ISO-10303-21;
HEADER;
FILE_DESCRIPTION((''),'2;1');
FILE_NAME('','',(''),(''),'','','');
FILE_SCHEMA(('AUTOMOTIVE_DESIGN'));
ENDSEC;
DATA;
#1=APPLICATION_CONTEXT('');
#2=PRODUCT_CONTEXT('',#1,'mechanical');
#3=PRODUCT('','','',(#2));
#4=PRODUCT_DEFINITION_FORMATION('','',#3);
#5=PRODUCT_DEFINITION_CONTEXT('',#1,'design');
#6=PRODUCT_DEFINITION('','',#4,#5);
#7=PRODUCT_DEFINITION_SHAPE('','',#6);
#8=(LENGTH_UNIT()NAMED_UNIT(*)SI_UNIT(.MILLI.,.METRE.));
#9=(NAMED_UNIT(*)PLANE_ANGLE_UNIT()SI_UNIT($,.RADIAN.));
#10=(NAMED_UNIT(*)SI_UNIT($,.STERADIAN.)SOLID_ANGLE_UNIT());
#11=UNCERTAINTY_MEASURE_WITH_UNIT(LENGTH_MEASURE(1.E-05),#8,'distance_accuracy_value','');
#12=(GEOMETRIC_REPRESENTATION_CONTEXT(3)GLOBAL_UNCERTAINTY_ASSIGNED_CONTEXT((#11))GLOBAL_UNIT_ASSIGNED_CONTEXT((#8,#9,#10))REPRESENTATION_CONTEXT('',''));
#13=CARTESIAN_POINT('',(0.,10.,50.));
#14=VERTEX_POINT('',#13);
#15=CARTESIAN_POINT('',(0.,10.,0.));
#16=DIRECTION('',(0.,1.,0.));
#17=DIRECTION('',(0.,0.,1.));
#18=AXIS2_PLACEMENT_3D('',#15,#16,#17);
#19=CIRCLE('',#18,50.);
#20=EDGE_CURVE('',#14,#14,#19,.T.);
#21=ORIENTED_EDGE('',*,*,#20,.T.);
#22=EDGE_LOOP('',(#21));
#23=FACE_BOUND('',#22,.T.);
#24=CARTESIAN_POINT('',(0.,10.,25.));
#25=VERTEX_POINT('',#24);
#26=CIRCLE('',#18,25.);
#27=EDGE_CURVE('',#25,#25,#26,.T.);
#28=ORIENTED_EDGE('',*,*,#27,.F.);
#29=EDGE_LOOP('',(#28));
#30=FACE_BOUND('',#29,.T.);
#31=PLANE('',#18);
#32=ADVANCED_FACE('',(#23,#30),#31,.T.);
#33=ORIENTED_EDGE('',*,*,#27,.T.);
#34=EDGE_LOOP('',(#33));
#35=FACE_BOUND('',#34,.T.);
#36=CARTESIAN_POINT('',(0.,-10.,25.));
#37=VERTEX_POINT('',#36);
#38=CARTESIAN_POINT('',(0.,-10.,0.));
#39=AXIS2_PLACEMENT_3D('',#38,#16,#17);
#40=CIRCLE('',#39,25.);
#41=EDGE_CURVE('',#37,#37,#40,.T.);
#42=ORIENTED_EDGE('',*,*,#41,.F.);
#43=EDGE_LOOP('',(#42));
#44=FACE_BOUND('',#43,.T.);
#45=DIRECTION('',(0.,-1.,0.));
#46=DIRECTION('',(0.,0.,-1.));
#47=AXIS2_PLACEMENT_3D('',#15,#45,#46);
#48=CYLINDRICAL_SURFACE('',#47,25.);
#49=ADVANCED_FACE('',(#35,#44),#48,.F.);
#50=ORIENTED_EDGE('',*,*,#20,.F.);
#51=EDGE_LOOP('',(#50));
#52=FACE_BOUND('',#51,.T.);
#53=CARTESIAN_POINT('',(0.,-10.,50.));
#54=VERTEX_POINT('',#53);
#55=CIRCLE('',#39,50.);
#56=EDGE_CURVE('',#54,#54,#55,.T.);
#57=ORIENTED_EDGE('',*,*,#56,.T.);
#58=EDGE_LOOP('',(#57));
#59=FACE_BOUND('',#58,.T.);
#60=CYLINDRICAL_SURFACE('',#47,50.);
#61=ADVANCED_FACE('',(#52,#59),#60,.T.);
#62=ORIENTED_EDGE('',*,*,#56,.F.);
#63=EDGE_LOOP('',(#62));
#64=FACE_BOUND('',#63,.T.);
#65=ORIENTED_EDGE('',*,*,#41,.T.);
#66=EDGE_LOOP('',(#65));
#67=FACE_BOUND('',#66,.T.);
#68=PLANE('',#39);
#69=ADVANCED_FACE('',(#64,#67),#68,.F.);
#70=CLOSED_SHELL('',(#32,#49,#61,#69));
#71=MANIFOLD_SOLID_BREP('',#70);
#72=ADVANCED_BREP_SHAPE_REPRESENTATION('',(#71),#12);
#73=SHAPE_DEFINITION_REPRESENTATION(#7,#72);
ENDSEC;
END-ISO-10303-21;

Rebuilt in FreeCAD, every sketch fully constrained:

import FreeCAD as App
import Part
import Sketcher
from FreeCAD import Vector
Q = App.Units.Quantity

doc = App.newDocument("Part")
body = doc.addObject("PartDesign::Body", "Body")

sketch1 = body.newObject("Sketcher::SketchObject", "Sketch")
sketch1.AttachmentSupport = (doc.getObject("XZ_Plane"), [""])
sketch1.MapMode = "FlatFace"
sketch1.addGeometry([
    Part.Circle(Vector(0, 0, 0), Vector(0, 0, 1), 50),
    Part.Circle(Vector(0, 0, 0), Vector(0, 0, 1), 25),
], False)
sketch1.addConstraint([
    Sketcher.Constraint("Coincident", 0, 3, -1, 1),
    Sketcher.Constraint("Coincident", 1, 3, -1, 1),
    Sketcher.Constraint("Diameter", 0, Q("100 mm")),
    Sketcher.Constraint("Diameter", 1, Q("50 mm")),
])
pad1 = body.newObject("PartDesign::Pad", "Pad")
pad1.Profile = sketch1
pad1.Length = 20
pad1.Midplane = True

doc.recompute()
